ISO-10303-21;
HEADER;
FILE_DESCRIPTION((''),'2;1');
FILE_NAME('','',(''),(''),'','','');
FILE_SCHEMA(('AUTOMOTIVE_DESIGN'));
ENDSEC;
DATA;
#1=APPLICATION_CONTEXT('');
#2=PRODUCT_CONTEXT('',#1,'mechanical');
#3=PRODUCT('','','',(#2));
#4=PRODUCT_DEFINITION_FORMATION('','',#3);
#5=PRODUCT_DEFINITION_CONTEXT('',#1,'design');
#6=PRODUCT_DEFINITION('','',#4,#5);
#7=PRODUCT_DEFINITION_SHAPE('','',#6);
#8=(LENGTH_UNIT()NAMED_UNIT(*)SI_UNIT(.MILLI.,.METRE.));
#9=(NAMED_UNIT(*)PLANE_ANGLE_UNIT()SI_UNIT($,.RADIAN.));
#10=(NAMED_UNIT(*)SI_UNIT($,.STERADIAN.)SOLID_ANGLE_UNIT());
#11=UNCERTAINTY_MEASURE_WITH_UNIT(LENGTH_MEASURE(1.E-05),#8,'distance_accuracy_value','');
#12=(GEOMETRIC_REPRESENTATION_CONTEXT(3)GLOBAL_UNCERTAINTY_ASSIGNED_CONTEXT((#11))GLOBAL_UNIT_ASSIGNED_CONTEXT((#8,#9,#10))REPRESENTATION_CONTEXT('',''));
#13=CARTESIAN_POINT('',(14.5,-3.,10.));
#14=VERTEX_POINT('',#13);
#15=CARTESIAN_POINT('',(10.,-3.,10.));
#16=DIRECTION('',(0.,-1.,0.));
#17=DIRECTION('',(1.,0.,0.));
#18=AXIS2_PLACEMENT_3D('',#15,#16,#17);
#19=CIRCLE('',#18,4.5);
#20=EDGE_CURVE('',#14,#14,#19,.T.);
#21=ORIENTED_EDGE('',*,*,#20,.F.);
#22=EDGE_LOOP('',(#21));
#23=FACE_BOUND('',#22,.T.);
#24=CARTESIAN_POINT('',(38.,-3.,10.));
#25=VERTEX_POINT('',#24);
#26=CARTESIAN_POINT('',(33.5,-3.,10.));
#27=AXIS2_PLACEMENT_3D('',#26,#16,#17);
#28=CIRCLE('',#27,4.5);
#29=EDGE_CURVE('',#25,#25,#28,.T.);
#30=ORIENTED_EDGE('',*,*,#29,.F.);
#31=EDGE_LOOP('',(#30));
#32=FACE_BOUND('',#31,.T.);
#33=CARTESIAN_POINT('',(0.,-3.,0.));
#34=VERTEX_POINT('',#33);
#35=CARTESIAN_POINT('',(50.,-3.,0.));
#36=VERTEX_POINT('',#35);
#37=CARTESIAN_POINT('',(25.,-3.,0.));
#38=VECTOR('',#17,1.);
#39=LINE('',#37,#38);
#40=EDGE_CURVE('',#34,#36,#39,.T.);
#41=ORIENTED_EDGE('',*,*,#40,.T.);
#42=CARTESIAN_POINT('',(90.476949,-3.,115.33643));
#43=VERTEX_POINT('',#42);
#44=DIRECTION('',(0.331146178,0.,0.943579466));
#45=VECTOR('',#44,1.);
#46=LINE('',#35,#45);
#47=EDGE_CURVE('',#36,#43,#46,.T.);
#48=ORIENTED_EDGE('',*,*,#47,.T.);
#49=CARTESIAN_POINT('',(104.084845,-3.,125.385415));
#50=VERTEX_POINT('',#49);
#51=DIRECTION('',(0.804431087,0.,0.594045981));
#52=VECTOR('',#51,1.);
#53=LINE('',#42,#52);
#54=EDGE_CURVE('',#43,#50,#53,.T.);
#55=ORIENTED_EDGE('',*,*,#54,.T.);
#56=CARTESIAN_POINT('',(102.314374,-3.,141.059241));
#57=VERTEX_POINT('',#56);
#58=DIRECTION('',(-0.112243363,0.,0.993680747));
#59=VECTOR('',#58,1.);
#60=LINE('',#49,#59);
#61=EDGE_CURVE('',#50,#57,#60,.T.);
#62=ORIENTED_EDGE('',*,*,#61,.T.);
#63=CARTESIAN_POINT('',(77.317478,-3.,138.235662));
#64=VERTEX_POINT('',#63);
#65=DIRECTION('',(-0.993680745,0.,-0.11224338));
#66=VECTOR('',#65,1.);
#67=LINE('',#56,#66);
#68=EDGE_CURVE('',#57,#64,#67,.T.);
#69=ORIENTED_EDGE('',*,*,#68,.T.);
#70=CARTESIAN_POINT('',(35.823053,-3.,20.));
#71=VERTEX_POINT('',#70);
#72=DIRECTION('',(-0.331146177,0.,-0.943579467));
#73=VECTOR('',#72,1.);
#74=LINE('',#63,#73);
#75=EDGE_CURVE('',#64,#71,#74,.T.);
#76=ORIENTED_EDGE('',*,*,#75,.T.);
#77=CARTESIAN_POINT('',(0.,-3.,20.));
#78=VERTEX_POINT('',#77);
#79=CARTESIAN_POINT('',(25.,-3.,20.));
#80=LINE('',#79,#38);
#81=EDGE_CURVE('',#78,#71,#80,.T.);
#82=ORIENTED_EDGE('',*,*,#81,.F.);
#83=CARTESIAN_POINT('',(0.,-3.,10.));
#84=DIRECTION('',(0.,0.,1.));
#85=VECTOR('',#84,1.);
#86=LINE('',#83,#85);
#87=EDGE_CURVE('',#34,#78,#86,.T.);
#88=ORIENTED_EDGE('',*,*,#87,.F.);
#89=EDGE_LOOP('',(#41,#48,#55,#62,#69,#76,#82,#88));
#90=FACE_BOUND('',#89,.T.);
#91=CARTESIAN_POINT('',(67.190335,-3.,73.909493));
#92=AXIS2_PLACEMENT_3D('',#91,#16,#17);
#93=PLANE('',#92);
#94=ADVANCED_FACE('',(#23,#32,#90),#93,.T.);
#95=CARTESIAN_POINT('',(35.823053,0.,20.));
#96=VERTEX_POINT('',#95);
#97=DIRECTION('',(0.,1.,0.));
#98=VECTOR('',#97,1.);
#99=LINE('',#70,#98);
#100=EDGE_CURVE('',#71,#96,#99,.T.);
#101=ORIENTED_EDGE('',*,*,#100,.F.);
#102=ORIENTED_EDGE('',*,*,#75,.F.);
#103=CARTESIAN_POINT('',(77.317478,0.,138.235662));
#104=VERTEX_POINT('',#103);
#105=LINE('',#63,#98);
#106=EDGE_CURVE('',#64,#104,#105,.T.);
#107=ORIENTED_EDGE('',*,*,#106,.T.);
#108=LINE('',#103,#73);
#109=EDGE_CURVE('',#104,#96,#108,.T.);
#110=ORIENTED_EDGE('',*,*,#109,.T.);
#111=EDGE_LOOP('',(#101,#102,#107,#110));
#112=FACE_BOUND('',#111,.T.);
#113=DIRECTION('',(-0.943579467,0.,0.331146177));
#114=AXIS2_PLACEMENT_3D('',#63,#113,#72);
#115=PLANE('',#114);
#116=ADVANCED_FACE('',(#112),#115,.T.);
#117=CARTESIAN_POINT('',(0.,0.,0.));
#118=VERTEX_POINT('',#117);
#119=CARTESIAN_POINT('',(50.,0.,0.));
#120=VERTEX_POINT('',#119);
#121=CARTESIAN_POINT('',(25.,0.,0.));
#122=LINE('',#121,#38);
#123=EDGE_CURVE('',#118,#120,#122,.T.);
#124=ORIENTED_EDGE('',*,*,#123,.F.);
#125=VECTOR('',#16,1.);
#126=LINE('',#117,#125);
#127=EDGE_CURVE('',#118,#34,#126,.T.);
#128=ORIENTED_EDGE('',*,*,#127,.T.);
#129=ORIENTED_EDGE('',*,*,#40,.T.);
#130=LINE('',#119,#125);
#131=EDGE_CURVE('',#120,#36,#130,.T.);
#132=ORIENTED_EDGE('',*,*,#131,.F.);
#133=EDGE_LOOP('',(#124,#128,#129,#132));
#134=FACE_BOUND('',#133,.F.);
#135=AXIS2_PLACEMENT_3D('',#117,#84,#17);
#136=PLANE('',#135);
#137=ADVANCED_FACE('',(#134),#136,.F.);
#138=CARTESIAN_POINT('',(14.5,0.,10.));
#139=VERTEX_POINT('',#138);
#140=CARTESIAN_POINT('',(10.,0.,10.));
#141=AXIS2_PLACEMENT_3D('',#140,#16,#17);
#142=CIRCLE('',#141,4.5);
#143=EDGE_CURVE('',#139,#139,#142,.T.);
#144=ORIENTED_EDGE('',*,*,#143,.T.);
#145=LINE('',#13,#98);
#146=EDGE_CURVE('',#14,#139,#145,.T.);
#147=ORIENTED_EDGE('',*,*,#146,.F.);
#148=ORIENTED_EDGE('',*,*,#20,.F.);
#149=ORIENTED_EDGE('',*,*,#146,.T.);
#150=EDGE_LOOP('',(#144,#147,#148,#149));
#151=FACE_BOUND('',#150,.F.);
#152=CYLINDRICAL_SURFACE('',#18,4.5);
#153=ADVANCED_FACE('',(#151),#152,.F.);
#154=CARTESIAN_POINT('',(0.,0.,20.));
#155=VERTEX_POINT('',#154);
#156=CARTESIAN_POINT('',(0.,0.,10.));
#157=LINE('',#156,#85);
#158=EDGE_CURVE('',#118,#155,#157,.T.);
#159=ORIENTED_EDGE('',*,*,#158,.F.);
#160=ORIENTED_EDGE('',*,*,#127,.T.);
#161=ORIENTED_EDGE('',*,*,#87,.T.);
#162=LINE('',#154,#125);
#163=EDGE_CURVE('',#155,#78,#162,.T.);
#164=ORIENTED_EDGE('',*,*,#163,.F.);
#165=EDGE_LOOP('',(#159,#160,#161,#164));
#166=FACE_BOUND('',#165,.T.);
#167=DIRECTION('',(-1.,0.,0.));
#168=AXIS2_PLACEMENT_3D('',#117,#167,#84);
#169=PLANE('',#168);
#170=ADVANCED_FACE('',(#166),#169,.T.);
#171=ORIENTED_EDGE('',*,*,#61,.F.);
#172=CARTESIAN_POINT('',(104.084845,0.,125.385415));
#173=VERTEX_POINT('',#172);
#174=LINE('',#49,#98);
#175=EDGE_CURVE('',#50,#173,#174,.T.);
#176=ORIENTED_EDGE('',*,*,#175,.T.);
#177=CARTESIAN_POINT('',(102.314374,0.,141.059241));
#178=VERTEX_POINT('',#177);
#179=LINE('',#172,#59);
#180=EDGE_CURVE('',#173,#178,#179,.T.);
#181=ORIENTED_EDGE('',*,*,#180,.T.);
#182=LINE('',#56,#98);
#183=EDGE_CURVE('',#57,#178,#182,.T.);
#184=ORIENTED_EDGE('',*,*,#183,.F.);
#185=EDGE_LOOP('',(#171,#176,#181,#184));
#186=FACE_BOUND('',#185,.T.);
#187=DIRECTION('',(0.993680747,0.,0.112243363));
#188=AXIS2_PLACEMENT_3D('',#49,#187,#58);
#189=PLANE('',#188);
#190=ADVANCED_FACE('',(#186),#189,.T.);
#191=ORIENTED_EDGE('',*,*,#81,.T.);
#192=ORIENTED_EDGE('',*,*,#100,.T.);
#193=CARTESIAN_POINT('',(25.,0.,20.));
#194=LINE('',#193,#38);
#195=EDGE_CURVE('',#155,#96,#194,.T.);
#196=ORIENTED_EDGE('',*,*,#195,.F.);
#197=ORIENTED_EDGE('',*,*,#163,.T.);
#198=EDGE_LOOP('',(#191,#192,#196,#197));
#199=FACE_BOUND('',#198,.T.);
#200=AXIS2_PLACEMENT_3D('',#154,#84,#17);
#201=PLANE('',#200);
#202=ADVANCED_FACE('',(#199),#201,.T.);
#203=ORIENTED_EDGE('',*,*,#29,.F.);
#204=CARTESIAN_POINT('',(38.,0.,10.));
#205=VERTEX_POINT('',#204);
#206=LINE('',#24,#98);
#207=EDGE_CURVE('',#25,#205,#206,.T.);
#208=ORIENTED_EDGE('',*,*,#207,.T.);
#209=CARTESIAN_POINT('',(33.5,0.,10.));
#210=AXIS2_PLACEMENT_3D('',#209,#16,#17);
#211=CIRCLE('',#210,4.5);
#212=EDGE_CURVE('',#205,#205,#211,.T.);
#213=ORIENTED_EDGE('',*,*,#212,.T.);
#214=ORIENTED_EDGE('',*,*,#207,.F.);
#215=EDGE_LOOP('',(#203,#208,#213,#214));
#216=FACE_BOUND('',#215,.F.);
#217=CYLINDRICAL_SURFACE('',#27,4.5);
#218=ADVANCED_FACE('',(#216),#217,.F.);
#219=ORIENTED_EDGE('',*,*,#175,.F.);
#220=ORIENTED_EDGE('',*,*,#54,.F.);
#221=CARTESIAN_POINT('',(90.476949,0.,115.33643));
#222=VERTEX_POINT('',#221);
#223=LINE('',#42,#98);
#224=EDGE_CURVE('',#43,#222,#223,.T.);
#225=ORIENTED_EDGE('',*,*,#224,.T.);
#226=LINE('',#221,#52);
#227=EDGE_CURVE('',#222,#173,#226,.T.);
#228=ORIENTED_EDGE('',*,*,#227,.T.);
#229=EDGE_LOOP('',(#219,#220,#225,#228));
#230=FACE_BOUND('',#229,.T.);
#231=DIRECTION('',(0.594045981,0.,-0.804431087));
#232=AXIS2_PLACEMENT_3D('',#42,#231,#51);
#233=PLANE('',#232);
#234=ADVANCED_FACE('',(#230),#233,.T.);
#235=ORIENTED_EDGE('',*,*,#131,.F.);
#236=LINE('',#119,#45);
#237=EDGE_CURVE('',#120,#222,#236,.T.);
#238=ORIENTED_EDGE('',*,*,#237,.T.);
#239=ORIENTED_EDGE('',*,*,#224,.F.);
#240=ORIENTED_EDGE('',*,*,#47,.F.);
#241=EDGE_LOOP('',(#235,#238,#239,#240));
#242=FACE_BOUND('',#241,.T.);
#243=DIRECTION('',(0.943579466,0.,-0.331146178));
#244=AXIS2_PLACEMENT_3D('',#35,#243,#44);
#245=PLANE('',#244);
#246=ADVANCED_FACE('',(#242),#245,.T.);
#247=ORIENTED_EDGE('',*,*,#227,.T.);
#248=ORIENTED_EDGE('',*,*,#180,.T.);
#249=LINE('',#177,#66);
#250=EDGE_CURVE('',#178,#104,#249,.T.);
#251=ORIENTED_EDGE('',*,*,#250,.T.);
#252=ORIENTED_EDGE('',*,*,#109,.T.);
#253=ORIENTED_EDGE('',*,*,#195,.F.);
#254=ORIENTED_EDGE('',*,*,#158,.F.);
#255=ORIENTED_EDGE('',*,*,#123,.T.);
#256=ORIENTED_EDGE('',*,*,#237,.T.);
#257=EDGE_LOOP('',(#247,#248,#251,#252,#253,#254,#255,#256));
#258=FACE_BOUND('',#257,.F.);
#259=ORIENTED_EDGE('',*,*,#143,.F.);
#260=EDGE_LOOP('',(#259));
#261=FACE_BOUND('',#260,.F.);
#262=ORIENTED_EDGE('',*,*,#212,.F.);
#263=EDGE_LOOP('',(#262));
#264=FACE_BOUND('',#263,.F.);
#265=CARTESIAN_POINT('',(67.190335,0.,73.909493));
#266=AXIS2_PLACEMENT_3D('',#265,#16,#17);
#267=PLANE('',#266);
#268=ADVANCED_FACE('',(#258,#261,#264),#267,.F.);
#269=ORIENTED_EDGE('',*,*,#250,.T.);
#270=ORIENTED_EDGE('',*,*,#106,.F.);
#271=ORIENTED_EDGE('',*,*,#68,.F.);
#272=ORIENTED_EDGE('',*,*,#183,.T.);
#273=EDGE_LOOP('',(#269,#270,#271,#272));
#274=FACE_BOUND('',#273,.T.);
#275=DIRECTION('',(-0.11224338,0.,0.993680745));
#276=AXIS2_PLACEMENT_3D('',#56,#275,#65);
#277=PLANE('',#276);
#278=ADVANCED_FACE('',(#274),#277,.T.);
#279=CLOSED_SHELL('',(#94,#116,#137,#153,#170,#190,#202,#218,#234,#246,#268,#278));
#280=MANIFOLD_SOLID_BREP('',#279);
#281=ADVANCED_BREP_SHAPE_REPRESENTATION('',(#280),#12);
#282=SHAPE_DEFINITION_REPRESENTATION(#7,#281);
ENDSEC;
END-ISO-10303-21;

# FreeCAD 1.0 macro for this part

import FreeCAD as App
import Part
import Sketcher


def add_polygon(sketch, points):
    """Adds a closed chain of lines whose ends are joined by coincident constraints."""
    first, n = sketch.GeometryCount, len(points)
    for a, b in zip(points, points[1:] + points[:1]):
        sketch.addGeometry(Part.LineSegment(App.Vector(*a, 0), App.Vector(*b, 0)), False)
    for i in range(n):
        sketch.addConstraint(Sketcher.Constraint("Coincident", first + i, 2, first + (i + 1) % n, 1))

doc = App.newDocument("Part")
body = doc.addObject("PartDesign::Body", "Body")

# Sketch on XZ plane
sketch1 = body.newObject("Sketcher::SketchObject", "Sketch")
sketch1.AttachmentSupport = (doc.getObject("XZ_Plane"), [""])
sketch1.MapMode = "FlatFace"
add_polygon(sketch1, [(0, 20), (0, 0), (50, 0), (50, 20)])  # lines 0-3
sketch1.addConstraint(Sketcher.Constraint("Vertical", 0))
sketch1.addConstraint(Sketcher.Constraint("Horizontal", 1))
sketch1.addConstraint(Sketcher.Constraint("Vertical", 2))
sketch1.addConstraint(Sketcher.Constraint("Horizontal", 3))
sketch1.addConstraint(Sketcher.Constraint("Coincident", 0, 2, -1, 1))
sketch1.addConstraint(Sketcher.Constraint("DistanceX", 1, 1, 1, 2, 50.0))
sketch1.addConstraint(Sketcher.Constraint("DistanceY", 0, 2, 0, 1, 20.0))
pad1 = body.newObject("PartDesign::Pad", "Pad")
pad1.Profile = sketch1
pad1.Length = 3

# Sketch on XZ plane
sketch2 = body.newObject("Sketcher::SketchObject", "Sketch001")
sketch2.AttachmentSupport = (doc.getObject("XZ_Plane"), [""])
sketch2.MapMode = "FlatFace"
sketch2.AttachmentOffset = App.Placement(App.Vector(0, 0, 3), App.Rotation())
sketch2.addGeometry(Part.Circle(App.Vector(10, 10, 0), App.Vector(0, 0, 1), 4.5), False)
sketch2.addGeometry(Part.Circle(App.Vector(33.5, 10, 0), App.Vector(0, 0, 1), 4.5), False)
sketch2.addConstraint(Sketcher.Constraint("Equal", 0, 1))
sketch2.addConstraint(Sketcher.Constraint("Horizontal", 0, 3, 1, 3))
sketch2.addConstraint(Sketcher.Constraint("Diameter", 0, 9.0))
sketch2.addConstraint(Sketcher.Constraint("DistanceX", -1, 1, 0, 3, 10.0))
sketch2.addConstraint(Sketcher.Constraint("DistanceY", -1, 1, 0, 3, 10.0))
sketch2.addConstraint(Sketcher.Constraint("DistanceX", -1, 1, 1, 3, 33.5))
pocket1 = body.newObject("PartDesign::Pocket", "Pocket")
pocket1.Profile = sketch2
pocket1.Type = "ThroughAll"

# Sketch on XZ plane
sketch3 = body.newObject("Sketcher::SketchObject", "Sketch002")
sketch3.AttachmentSupport = (doc.getObject("XZ_Plane"), [""])
sketch3.MapMode = "FlatFace"
sketch3.AttachmentOffset = App.Placement(App.Vector(0, 0, 3), App.Rotation())
add_polygon(sketch3, [(50, 20), (50, 0), (90, 115), (104, 125), (102, 141), (77, 138), (36, 20)])  # lines 0-6
sketch3.addConstraint(Sketcher.Constraint("Vertical", 0))
sketch3.addConstraint(Sketcher.Constraint("Horizontal", 6))
sketch3.addConstraint(Sketcher.Constraint("PointOnObject", 0, 2, -1))
sketch3.addConstraint(Sketcher.Constraint("Perpendicular", 3, 4))
sketch3.addConstraint(Sketcher.Constraint("Parallel", 1, 5))
sketch3.addConstraint(Sketcher.Constraint("DistanceY", 0, 2, 0, 1, 20.0))
sketch3.addConstraint(Sketcher.Constraint("DistanceX", -1, 1, 0, 2, 50.0))
sketch3.addConstraint(Sketcher.Constraint("DistanceX", 6, 1, 6, 2, 14.176947))
sketch3.addConstraint(Sketcher.Constraint("DistanceX", -1, 1, 1, 2, 90.476949))
sketch3.addConstraint(Sketcher.Constraint("DistanceY", -1, 1, 1, 2, 115.33643))
sketch3.addConstraint(Sketcher.Constraint("DistanceY", -1, 1, 3, 2, 141.059241))
sketch3.addConstraint(Sketcher.Constraint("DistanceY", -1, 1, 4, 2, 138.235662))
sketch3.addConstraint(Sketcher.Constraint("DistanceX", 3, 2, 2, 2, 1.770471))
sketch3.addConstraint(Sketcher.Constraint("DistanceX", 5, 2, 2, 2, 68.261792))
pad2 = body.newObject("PartDesign::Pad", "Pad001")
pad2.Profile = sketch3
pad2.Length = 3
pad2.Reversed = True

doc.recompute()
